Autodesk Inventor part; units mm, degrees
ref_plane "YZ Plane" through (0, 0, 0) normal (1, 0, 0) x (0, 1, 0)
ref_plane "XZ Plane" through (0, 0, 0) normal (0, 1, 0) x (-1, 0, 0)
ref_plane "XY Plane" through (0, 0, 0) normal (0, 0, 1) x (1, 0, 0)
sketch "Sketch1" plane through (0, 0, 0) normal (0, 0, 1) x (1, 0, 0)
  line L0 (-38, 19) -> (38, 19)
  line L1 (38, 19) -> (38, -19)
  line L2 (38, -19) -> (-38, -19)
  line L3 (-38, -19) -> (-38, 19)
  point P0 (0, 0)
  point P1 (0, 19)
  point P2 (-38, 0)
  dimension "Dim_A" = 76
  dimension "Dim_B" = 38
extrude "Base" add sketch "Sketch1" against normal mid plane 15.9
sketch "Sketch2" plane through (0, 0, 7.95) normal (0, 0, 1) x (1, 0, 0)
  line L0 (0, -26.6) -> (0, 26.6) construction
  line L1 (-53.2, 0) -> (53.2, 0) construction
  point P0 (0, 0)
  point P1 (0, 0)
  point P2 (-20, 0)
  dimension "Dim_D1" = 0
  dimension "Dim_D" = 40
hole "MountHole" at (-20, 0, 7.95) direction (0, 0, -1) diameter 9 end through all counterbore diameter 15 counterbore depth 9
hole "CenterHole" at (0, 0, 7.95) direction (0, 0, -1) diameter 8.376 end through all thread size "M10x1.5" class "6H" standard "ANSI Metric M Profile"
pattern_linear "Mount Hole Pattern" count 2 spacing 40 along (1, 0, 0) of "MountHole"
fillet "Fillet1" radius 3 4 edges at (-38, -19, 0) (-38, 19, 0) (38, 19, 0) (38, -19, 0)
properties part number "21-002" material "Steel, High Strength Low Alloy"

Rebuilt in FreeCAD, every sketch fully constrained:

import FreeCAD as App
import Part
import Sketcher
from FreeCAD import Vector


def edges_at(feature, points):
    """Names of the edges that pass closest to the given points."""
    edges = feature.Shape.Edges
    near = lambda p: min(range(len(edges)), key=lambda i: edges[i].distToShape(Part.Vertex(*p))[0])
    return sorted({f"Edge{near(p) + 1}" for p in points})

doc = App.newDocument("Part")
body = doc.addObject("PartDesign::Body", "Body")

sketch1 = body.newObject("Sketcher::SketchObject", "Sketch")
sketch1.AttachmentSupport = (doc.getObject("XY_Plane"), [""])
sketch1.MapMode = "FlatFace"
sketch1.addGeometry(Part.LineSegment(Vector(38, 19, 0), Vector(-38, 19, 0)), False)
sketch1.addGeometry(Part.LineSegment(Vector(-38, 19, 0), Vector(-38, -19, 0)), False)
sketch1.addGeometry(Part.LineSegment(Vector(-38, -19, 0), Vector(38, -19, 0)), False)
sketch1.addGeometry(Part.LineSegment(Vector(38, -19, 0), Vector(38, 19, 0)), False)
sketch1.addConstraint(Sketcher.Constraint("Coincident", 0, 2, 1, 1))
sketch1.addConstraint(Sketcher.Constraint("Coincident", 1, 2, 2, 1))
sketch1.addConstraint(Sketcher.Constraint("Coincident", 2, 2, 3, 1))
sketch1.addConstraint(Sketcher.Constraint("Coincident", 3, 2, 0, 1))
sketch1.addConstraint(Sketcher.Constraint("Horizontal", 0))
sketch1.addConstraint(Sketcher.Constraint("Vertical", 1))
sketch1.addConstraint(Sketcher.Constraint("Horizontal", 2))
sketch1.addConstraint(Sketcher.Constraint("Vertical", 3))
sketch1.addConstraint(Sketcher.Constraint("Symmetric", 0, 2, 2, 2, -1, 1))
sketch1.addConstraint(Sketcher.Constraint("DistanceX", 0, 2, 0, 1, 76.0))
sketch1.addConstraint(Sketcher.Constraint("DistanceY", 1, 2, 1, 1, 38.0))
pad1 = body.newObject("PartDesign::Pad", "Pad")
pad1.Profile = sketch1
pad1.Length = 15.9
pad1.Midplane = True

sketch2 = body.newObject("Sketcher::SketchObject", "Sketch001")
sketch2.AttachmentSupport = (doc.getObject("XY_Plane"), [""])
sketch2.MapMode = "FlatFace"
sketch2.AttachmentOffset = App.Placement(Vector(0, 0, 7.95), App.Rotation())
sketch2.addGeometry(Part.Circle(Vector(-20, 0, 0), Vector(0, 0, 1), 4.5), False)
sketch2.addConstraint(Sketcher.Constraint("PointOnObject", 0, 3, -1))
sketch2.addConstraint(Sketcher.Constraint("Diameter", 0, 9.0))
sketch2.addConstraint(Sketcher.Constraint("DistanceX", 0, 3, -1, 1, 20.0))
doc.recompute()
hole = body.newObject("PartDesign::Hole", "Hole")
hole.Profile = sketch2
hole.ThreadType = "None"
hole.Diameter = 9
hole.DepthType = "ThroughAll"
hole.HoleCutType = "Counterbore"
hole.HoleCutDiameter = 15
hole.HoleCutDepth = 9

sketch3 = body.newObject("Sketcher::SketchObject", "Sketch002")
sketch3.AttachmentSupport = (doc.getObject("XY_Plane"), [""])
sketch3.MapMode = "FlatFace"
sketch3.AttachmentOffset = App.Placement(Vector(0, 0, 7.95), App.Rotation())
sketch3.addGeometry(Part.Circle(Vector(0, 0, 0), Vector(0, 0, 1), 4.188), False)
sketch3.addConstraint(Sketcher.Constraint("Coincident", 0, 3, -1, 1))
sketch3.addConstraint(Sketcher.Constraint("Diameter", 0, 8.376))
doc.recompute()
hole2 = body.newObject("PartDesign::Hole", "Hole001")
hole2.Profile = sketch3
hole2.ThreadType = "None"
hole2.Diameter = 8.376
hole2.DepthType = "ThroughAll"
doc.recompute()

linearpattern = body.newObject("PartDesign::LinearPattern", "LinearPattern")
linearpattern.Originals = [hole]
linearpattern.Direction = (doc.getObject("X_Axis"), [""])
linearpattern.Mode = "offset"
linearpattern.Offset = 40
linearpattern.Occurrences = 2
body.Tip = linearpattern
doc.recompute()

fillet = body.newObject("PartDesign::Fillet", "Fillet")
fillet.Base = (linearpattern, edges_at(linearpattern, [
    (-38, -19, 0),
    (-38, 19, 0),
    (38, 19, 0),
    (38, -19, 0),
]))
fillet.Radius = 3

doc.recompute()
